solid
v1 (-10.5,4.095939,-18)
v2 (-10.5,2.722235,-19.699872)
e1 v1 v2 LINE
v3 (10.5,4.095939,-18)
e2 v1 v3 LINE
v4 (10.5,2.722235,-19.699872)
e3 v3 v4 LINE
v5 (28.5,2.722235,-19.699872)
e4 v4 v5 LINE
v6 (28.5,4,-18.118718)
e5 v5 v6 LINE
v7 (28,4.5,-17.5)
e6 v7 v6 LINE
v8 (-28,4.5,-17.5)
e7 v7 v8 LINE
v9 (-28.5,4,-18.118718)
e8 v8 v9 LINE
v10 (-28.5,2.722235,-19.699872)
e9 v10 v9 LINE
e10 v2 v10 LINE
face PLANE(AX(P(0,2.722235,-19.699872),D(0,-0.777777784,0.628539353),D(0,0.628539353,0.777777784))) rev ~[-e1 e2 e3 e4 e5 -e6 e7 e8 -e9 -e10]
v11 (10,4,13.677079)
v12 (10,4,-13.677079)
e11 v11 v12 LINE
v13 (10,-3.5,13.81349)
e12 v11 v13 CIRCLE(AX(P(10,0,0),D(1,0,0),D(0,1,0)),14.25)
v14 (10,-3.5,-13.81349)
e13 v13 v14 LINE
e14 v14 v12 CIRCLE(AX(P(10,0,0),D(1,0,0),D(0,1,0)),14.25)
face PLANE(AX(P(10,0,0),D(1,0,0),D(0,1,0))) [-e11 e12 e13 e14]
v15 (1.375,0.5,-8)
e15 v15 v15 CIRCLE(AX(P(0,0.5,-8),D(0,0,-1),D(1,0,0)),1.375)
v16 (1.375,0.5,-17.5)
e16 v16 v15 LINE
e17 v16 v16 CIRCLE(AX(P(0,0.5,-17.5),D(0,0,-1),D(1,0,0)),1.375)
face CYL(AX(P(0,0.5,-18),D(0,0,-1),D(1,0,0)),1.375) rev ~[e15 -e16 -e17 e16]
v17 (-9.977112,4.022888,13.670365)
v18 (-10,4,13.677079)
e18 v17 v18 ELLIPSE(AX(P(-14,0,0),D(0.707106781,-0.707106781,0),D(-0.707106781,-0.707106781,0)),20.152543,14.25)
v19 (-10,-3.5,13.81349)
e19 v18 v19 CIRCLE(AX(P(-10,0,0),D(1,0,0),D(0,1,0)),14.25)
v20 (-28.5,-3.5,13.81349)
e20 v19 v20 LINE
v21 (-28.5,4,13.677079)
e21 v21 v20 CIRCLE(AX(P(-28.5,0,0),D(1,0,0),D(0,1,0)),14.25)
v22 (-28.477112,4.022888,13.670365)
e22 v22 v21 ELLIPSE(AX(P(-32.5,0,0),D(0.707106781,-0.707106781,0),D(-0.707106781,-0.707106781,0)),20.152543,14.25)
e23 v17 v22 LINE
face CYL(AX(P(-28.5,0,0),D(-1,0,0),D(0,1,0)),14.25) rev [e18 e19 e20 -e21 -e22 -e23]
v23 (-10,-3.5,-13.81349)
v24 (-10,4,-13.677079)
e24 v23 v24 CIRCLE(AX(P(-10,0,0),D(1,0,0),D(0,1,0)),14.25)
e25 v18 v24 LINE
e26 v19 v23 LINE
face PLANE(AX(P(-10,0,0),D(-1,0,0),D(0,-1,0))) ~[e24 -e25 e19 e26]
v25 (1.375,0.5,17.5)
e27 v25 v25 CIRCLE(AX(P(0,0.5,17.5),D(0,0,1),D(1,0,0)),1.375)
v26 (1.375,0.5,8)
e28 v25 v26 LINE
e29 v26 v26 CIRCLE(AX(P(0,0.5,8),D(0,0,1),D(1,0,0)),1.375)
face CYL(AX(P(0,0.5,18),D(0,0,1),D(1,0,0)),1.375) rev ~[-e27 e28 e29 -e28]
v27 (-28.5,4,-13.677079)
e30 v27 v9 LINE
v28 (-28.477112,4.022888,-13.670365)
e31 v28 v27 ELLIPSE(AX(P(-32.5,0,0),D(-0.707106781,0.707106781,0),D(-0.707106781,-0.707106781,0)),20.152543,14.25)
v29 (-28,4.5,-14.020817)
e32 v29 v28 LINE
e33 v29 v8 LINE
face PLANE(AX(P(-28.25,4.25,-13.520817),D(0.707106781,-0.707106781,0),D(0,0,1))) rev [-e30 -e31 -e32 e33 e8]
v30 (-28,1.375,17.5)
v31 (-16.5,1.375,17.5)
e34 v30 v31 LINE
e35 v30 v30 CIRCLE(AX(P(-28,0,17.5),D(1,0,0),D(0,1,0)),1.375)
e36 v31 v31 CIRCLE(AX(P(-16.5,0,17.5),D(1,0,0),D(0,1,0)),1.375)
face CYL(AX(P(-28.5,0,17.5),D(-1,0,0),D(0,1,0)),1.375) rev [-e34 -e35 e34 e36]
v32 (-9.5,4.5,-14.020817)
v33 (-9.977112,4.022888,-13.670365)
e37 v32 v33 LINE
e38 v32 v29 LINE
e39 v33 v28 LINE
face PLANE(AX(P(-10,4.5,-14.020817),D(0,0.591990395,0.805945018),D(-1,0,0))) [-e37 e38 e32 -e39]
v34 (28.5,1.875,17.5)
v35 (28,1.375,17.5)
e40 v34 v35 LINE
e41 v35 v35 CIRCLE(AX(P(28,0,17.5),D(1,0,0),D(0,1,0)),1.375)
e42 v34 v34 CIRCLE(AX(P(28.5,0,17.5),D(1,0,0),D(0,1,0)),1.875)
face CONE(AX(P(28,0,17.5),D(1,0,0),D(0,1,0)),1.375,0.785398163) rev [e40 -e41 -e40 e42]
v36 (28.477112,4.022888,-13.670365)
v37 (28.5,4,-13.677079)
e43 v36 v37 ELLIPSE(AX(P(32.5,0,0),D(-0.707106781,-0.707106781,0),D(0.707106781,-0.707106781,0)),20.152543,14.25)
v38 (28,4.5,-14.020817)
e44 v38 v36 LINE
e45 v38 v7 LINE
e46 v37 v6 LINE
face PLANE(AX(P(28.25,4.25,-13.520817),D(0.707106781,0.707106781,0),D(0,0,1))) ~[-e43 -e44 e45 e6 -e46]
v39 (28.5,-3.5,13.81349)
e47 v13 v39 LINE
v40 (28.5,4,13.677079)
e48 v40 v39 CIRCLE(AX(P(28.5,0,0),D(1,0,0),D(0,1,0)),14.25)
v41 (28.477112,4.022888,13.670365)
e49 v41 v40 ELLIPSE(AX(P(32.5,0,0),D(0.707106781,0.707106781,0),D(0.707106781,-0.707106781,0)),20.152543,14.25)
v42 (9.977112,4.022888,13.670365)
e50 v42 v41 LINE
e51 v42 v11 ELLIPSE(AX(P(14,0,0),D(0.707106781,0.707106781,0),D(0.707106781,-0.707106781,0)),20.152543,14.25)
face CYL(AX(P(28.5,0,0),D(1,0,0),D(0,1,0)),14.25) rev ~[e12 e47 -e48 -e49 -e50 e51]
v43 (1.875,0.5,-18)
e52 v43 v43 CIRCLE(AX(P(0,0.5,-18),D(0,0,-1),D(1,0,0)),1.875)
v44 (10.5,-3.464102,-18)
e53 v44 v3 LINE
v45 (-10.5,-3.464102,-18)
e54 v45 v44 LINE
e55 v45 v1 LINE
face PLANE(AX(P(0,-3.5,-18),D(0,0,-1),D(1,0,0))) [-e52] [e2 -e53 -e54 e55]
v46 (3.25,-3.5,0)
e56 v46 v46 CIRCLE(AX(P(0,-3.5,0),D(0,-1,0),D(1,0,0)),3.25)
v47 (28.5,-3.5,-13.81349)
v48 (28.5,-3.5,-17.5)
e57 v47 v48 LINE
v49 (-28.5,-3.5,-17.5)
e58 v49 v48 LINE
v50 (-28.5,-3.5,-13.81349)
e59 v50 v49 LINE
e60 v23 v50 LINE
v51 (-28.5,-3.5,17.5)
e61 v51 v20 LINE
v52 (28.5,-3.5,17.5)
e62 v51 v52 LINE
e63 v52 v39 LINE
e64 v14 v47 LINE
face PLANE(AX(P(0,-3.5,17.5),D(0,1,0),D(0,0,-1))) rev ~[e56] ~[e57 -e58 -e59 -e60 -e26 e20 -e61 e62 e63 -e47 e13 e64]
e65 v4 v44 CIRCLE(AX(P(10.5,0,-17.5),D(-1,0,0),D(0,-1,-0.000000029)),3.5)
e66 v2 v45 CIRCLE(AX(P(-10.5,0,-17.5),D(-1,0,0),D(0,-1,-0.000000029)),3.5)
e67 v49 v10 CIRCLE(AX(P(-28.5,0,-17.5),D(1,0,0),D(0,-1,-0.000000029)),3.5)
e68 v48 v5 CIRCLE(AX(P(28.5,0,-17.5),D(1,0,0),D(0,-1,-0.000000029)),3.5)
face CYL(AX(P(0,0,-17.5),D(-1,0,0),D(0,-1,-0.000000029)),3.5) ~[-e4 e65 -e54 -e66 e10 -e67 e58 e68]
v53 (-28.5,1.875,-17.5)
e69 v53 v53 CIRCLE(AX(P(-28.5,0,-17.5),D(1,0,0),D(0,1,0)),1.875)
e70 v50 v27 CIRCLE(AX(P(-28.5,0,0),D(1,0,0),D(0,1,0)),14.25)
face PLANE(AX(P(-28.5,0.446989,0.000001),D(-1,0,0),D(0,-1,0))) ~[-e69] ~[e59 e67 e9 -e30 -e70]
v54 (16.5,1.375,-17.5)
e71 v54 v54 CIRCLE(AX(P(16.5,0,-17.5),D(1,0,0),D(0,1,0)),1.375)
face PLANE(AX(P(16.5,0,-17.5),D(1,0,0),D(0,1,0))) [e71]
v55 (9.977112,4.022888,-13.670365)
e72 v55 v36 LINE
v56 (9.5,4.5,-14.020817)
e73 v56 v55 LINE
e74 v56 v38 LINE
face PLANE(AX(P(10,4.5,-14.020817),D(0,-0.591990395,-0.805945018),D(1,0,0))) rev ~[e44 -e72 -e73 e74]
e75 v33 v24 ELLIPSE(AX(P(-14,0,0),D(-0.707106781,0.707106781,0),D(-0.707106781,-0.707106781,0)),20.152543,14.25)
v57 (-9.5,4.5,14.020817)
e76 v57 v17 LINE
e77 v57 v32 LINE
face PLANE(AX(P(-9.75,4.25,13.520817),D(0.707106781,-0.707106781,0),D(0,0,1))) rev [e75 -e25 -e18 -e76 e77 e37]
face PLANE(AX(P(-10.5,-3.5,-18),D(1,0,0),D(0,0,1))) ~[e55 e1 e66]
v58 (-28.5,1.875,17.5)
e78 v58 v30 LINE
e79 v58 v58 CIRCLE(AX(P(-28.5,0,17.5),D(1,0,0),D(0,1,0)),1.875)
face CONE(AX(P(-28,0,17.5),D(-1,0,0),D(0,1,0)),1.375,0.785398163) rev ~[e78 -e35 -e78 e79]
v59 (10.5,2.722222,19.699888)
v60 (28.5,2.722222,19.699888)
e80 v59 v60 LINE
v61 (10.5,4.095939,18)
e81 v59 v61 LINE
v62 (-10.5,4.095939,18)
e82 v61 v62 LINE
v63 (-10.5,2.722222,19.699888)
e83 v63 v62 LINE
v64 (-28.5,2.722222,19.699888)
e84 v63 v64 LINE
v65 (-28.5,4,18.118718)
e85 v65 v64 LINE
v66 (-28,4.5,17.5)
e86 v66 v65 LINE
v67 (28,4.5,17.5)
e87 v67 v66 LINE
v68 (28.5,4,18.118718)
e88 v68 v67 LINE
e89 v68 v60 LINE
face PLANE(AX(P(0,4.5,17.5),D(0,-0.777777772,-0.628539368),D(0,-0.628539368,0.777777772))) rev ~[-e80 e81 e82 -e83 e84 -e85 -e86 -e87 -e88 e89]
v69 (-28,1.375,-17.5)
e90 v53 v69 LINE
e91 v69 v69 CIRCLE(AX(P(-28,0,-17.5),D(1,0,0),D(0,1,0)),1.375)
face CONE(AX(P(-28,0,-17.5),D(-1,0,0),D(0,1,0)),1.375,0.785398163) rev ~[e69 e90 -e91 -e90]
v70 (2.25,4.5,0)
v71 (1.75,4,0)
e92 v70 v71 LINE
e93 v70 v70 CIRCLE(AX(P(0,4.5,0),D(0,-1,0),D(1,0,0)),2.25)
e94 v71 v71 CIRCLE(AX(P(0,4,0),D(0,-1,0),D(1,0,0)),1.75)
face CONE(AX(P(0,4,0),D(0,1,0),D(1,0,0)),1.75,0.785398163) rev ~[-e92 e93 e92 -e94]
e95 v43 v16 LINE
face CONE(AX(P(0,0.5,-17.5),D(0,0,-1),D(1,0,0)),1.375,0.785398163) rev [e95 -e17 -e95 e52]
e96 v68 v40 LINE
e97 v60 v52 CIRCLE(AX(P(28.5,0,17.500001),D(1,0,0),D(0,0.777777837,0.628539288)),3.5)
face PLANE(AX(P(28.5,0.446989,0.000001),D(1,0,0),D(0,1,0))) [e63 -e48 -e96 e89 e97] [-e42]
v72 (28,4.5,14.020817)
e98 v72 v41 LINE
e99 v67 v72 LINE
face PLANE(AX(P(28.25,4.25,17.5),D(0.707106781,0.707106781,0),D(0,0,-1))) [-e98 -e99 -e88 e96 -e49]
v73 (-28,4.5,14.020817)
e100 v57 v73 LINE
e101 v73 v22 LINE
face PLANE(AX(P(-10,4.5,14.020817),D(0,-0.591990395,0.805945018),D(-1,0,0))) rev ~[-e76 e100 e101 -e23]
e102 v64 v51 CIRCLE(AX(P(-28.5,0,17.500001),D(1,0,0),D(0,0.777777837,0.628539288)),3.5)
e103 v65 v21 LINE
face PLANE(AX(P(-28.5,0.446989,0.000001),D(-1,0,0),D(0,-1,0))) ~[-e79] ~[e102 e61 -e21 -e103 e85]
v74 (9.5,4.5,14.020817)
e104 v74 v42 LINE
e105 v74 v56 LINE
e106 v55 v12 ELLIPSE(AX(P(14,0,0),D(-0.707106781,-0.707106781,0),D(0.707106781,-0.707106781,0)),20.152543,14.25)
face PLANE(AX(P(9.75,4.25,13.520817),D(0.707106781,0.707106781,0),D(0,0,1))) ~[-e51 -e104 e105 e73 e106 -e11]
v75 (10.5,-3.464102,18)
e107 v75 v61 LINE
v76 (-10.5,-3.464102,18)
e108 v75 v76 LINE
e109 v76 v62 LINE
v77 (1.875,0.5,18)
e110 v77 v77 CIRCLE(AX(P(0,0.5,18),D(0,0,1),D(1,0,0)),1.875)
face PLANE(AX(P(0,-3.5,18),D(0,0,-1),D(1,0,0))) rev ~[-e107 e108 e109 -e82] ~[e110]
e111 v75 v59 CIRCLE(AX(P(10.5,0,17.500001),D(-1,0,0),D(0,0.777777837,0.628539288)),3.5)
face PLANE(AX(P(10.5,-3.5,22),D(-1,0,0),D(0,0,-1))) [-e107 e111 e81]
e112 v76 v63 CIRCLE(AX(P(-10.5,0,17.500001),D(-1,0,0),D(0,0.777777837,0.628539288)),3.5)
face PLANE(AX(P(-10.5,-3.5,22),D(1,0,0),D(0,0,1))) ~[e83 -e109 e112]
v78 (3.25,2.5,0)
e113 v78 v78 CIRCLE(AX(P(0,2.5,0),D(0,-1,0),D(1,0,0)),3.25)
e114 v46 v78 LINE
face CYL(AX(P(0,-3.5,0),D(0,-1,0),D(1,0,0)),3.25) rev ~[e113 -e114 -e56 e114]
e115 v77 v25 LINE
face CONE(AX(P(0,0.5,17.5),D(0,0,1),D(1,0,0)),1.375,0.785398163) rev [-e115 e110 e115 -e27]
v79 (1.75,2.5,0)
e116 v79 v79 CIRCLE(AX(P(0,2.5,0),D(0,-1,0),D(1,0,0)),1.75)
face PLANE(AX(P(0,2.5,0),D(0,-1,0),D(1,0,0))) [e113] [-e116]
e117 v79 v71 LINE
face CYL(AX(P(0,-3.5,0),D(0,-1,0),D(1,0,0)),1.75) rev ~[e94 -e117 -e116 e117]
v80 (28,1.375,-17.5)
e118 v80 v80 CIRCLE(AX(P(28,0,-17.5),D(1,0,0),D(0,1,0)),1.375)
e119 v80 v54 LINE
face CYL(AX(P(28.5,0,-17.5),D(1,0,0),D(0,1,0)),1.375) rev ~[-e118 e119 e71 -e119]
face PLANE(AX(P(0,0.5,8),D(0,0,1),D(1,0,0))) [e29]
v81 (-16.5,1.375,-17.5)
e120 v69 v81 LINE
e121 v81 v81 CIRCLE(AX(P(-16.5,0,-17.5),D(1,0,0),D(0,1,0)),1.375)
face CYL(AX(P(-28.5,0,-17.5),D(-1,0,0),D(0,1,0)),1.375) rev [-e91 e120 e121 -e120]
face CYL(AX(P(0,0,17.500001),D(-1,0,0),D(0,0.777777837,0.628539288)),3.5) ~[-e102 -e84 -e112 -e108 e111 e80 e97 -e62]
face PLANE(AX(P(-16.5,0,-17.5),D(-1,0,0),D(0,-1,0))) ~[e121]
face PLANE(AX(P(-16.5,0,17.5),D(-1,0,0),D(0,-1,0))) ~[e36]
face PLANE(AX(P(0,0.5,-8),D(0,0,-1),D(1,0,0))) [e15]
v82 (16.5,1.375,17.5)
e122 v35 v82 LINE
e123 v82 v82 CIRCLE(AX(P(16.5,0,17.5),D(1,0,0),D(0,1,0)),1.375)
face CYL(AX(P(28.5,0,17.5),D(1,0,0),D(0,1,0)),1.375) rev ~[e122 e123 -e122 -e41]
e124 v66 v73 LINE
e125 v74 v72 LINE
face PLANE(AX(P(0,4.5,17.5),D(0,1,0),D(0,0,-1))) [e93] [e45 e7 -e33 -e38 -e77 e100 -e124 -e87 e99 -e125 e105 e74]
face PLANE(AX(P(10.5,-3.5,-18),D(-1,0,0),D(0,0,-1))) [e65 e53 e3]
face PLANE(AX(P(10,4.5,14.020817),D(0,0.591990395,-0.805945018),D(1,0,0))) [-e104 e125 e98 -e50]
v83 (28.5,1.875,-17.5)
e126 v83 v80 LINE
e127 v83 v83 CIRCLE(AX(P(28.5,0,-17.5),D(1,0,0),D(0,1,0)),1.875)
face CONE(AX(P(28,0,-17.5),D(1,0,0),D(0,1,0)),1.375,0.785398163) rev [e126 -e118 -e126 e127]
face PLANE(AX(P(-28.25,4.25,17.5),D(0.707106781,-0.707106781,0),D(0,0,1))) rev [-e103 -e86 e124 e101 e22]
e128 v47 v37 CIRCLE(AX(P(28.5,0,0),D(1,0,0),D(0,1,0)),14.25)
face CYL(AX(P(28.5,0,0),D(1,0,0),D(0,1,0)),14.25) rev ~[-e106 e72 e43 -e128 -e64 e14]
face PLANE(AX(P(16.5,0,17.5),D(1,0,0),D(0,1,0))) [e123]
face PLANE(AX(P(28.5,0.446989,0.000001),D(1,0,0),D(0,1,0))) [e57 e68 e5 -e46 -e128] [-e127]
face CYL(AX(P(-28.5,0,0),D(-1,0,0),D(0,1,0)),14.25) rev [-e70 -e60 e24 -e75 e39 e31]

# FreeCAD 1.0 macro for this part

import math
import FreeCAD as App
import Part
import Sketcher

V = App.Vector


def edges_at(feature, points):
    """Names of the edges that pass closest to the given points."""
    edges = feature.Shape.Edges
    near = lambda p: min(range(len(edges)), key=lambda i: edges[i].distToShape(Part.Vertex(*p))[0])
    return sorted({f"Edge{near(p) + 1}" for p in points})


def add_polygon(sketch, points):
    """Adds a closed chain of lines whose ends are joined by coincident constraints."""
    first, n = sketch.GeometryCount, len(points)
    for a, b in zip(points, points[1:] + points[:1]):
        sketch.addGeometry(Part.LineSegment(App.Vector(*a, 0), App.Vector(*b, 0)), False)
    for i in range(n):
        sketch.addConstraint(Sketcher.Constraint("Coincident", first + i, 2, first + (i + 1) % n, 1))

doc = App.newDocument("Part")
body = doc.addObject("PartDesign::Body", "Body")

sketch1 = doc.addObject("Sketcher::SketchObject", "Sketch")
body.addObject(sketch1)
sketch1.AttachmentSupport = (doc.YZ_Plane, [""])
sketch1.MapMode = "FlatFace"
sketch1.addGeometry([
    Part.ArcOfCircle(Part.Circle(V(0, 17.500001, 0), V(0, 0, 1), 3.5), math.radians(38.942436), math.radians(180.000011)),
    Part.LineSegment(V(-3.5, 17.5, 0), V(-3.5, -17.5, 0)),
    Part.ArcOfCircle(Part.Circle(V(0, -17.5, 0), V(0, 0, 1), 3.5), math.radians(-179.999998), math.radians(-38.942111)),
    Part.LineSegment(V(2.722235, -19.699872, 0), V(4.5, -17.5, 0)),
    Part.LineSegment(V(4.5, -17.5, 0), V(4.5, 17.5, 0)),
    Part.LineSegment(V(4.5, 17.5, 0), V(2.722222, 19.699888, 0)),
], False)
sketch1.addConstraint([
    Sketcher.Constraint("Tangent", 0, 2, 1, 1),
    Sketcher.Constraint("Tangent", 1, 2, 2, 1),
    Sketcher.Constraint("Coincident", 2, 2, 3, 1),
    Sketcher.Constraint("Coincident", 3, 2, 4, 1),
    Sketcher.Constraint("Coincident", 4, 2, 5, 1),
    Sketcher.Constraint("Tangent", 5, 2, 0, 1),
    Sketcher.Constraint("Vertical", 1),
    Sketcher.Constraint("Vertical", 4),
    Sketcher.Constraint("Equal", 0, 2),
    Sketcher.Constraint("Symmetric", 0, 3, 2, 3, -1, 1),
    Sketcher.Constraint("Horizontal", 1, 2, 3, 2),
    Sketcher.Constraint("Horizontal", 0, 2, 4, 2),
    Sketcher.Constraint("Radius", 0, 3.5),
    Sketcher.Constraint("DistanceY", 1, 2, 1, 1, 35.0),
    Sketcher.Constraint("DistanceX", 1, 2, 3, 2, 8.0),
    Sketcher.Constraint("DistanceY", 2, 2, -1, 1, 19.699872),
])
pad1 = doc.addObject("PartDesign::Pad", "Pad")
body.addObject(pad1)
pad1.Profile = sketch1
pad1.Length = 28.5

sketch2 = doc.addObject("Sketcher::SketchObject", "Sketch001")
body.addObject(sketch2)
sketch2.AttachmentSupport = (doc.YZ_Plane, [""])
sketch2.MapMode = "FlatFace"
sketch2.AttachmentOffset = App.Placement(V(0, 0, 28.5), App.Rotation())
sketch2.addGeometry(Part.Circle(V(0, 0, 0), V(0, 0, 1), 14.25), False)
sketch2.addConstraint([
    Sketcher.Constraint("Coincident", 0, 3, -1, 1),
    Sketcher.Constraint("Diameter", 0, 28.5),
])
pocket1 = doc.addObject("PartDesign::Pocket", "Pocket")
body.addObject(pocket1)
pocket1.Profile = sketch2
pocket1.Length = 18.5

sketch3 = doc.addObject("Sketcher::SketchObject", "Sketch002")
body.addObject(sketch3)
sketch3.AttachmentSupport = (doc.YZ_Plane, [""])
sketch3.MapMode = "FlatFace"
sketch3.AttachmentOffset = App.Placement(V(0, 0, 28.5), App.Rotation())
sketch3.addGeometry([
    Part.Circle(V(0, -17.5, 0), V(0, 0, 1), 1.375),
    Part.Circle(V(0, 17.5, 0), V(0, 0, 1), 1.375),
], False)
sketch3.addConstraint([
    Sketcher.Constraint("Equal", 0, 1),
    Sketcher.Constraint("Symmetric", 0, 3, 1, 3, -1, 1),
    Sketcher.Constraint("PointOnObject", 0, 3, -2),
    Sketcher.Constraint("Diameter", 0, 2.75),
    Sketcher.Constraint("DistanceY", 0, 3, 1, 3, 35.0),
])
pocket2 = doc.addObject("PartDesign::Pocket", "Pocket001")
body.addObject(pocket2)
pocket2.Profile = sketch3
pocket2.Length = 12

sketch4 = doc.addObject("Sketcher::SketchObject", "Sketch003")
body.addObject(sketch4)
sketch4.AttachmentSupport = (doc.XZ_Plane, [""])
sketch4.MapMode = "FlatFace"
sketch4.AttachmentOffset = App.Placement(V(0, 0, 3.5), App.Rotation())
add_polygon(sketch4, [(10.5, 22), (0, 22), (0, 18), (10.5, 18)])
add_polygon(sketch4, [(10.5, -18), (0, -18), (0, -22), (10.5, -22)])
sketch4.addConstraint([
    Sketcher.Constraint("Horizontal", 0),
    Sketcher.Constraint("Vertical", 1),
    Sketcher.Constraint("Horizontal", 2),
    Sketcher.Constraint("Vertical", 3),
    Sketcher.Constraint("Horizontal", 4),
    Sketcher.Constraint("Vertical", 5),
    Sketcher.Constraint("Horizontal", 6),
    Sketcher.Constraint("Vertical", 7),
    Sketcher.Constraint("Symmetric", 1, 2, 4, 2, -1, 1),
    Sketcher.Constraint("Symmetric", 0, 2, 5, 2, -1),
    Sketcher.Constraint("Vertical", 3, 2, 6, 2),
    Sketcher.Constraint("DistanceY", 1, 2, 1, 1, 4.0),
    Sketcher.Constraint("DistanceX", 0, 2, 0, 1, 10.5),
    Sketcher.Constraint("DistanceY", -1, 1, 0, 2, 22.0),
])
pocket3 = doc.addObject("PartDesign::Pocket", "Pocket002")
body.addObject(pocket3)
pocket3.Profile = sketch4
pocket3.Length = 8
body2 = doc.addObject("PartDesign::Body", "Body001")
doc.recompute()

mirroring = doc.addObject("Part::Mirroring", "Mirroring")
mirroring.Source = body
mirroring.Base = V(0, 0, 0)
mirroring.Normal = V(1, 0, 0)
body2.BaseFeature = mirroring
doc.recompute()

boolean = doc.addObject("PartDesign::Boolean", "Boolean")
body2.addObject(boolean)
boolean.Type = "Fuse"
boolean.addObjects([body])

sketch5 = doc.addObject("Sketcher::SketchObject", "Sketch004")
body2.addObject(sketch5)
sketch5.AttachmentSupport = (doc.getObject("XZ_Plane001"), [""])
sketch5.MapMode = "FlatFace"
sketch5.AttachmentOffset = App.Placement(V(0, 0, 3.5), App.Rotation())
sketch5.addGeometry(Part.Circle(V(0, 0, 0), V(0, 0, 1), 1.75), False)
sketch5.addConstraint([
    Sketcher.Constraint("Coincident", 0, 3, -1, 1),
    Sketcher.Constraint("Diameter", 0, 3.5),
])
pocket4 = doc.addObject("PartDesign::Pocket", "Pocket003")
body2.addObject(pocket4)
pocket4.Profile = sketch5
pocket4.Length = 8

sketch6 = doc.addObject("Sketcher::SketchObject", "Sketch005")
body2.addObject(sketch6)
sketch6.AttachmentSupport = (doc.getObject("XZ_Plane001"), [""])
sketch6.MapMode = "FlatFace"
sketch6.AttachmentOffset = App.Placement(V(0, 0, 3.5), App.Rotation())
sketch6.addGeometry(Part.Circle(V(0, 0, 0), V(0, 0, 1), 3.25), False)
sketch6.addConstraint([
    Sketcher.Constraint("Coincident", 0, 3, -1, 1),
    Sketcher.Constraint("Diameter", 0, 6.5),
])
pocket5 = doc.addObject("PartDesign::Pocket", "Pocket004")
body2.addObject(pocket5)
pocket5.Profile = sketch6
pocket5.Length = 6

sketch7 = doc.addObject("Sketcher::SketchObject", "Sketch006")
body2.addObject(sketch7)
sketch7.AttachmentSupport = (doc.getObject("XY_Plane001"), [""])
sketch7.MapMode = "FlatFace"
sketch7.AttachmentOffset = App.Placement(V(0, 0, 18), App.Rotation())
sketch7.addGeometry(Part.Circle(V(0, 0.5, 0), V(0, 0, 1), 1.375), False)
sketch7.addConstraint([
    Sketcher.Constraint("PointOnObject", 0, 3, -2),
    Sketcher.Constraint("Diameter", 0, 2.75),
    Sketcher.Constraint("DistanceY", -1, 1, 0, 3, 0.5),
])
pocket6 = doc.addObject("PartDesign::Pocket", "Pocket005")
body2.addObject(pocket6)
pocket6.Profile = sketch7
pocket6.Length = 10

sketch8 = doc.addObject("Sketcher::SketchObject", "Sketch007")
body2.addObject(sketch8)
sketch8.AttachmentSupport = (doc.getObject("XY_Plane001"), [""])
sketch8.MapMode = "FlatFace"
sketch8.AttachmentOffset = App.Placement(V(0, 0, -18), App.Rotation())
sketch8.addGeometry(Part.Circle(V(0, 0.5, 0), V(0, 0, 1), 1.375), False)
sketch8.addConstraint([
    Sketcher.Constraint("PointOnObject", 0, 3, -2),
    Sketcher.Constraint("Diameter", 0, 2.75),
    Sketcher.Constraint("DistanceY", -1, 1, 0, 3, 0.5),
])
pocket7 = doc.addObject("PartDesign::Pocket", "Pocket006")
body2.addObject(pocket7)
pocket7.Profile = sketch8
pocket7.Length = 10
pocket7.Reversed = True
doc.recompute()

chamfer = doc.addObject("PartDesign::Chamfer", "Chamfer")
body2.addObject(chamfer)
chamfer.Base = (pocket7, edges_at(pocket7, [
    (28.5, -1.375, -17.5),
    (-28.5, -1.375, -17.5),
    (-28.5, -1.375, 17.5),
    (28.5, -1.375, 17.5),
    (-1.375, 0.5, -18),
    (-1.375, 0.5, 18),
]))
chamfer.Size = 0.5
doc.recompute()

chamfer2 = doc.addObject("PartDesign::Chamfer", "Chamfer001")
body2.addObject(chamfer2)
chamfer2.Base = (chamfer, edges_at(chamfer, [
    (28.5, 4.5, -15.51),
    (19.25, 4.5, -13.521),
    (-10, 4.5, 0),
    (-19.25, 4.5, -13.521),
    (-19.25, 4.5, 13.521),
    (-28.5, 4.5, -15.51),
    (-28.5, 4.5, 15.51),
    (28.5, 4.5, 15.51),
    (19.25, 4.5, 13.521),
    (10, 4.5, 0),
    (-1.75, 4.5, 0),
]))
chamfer2.Size = 0.5
mirroring.Visibility = False

doc.recompute()
